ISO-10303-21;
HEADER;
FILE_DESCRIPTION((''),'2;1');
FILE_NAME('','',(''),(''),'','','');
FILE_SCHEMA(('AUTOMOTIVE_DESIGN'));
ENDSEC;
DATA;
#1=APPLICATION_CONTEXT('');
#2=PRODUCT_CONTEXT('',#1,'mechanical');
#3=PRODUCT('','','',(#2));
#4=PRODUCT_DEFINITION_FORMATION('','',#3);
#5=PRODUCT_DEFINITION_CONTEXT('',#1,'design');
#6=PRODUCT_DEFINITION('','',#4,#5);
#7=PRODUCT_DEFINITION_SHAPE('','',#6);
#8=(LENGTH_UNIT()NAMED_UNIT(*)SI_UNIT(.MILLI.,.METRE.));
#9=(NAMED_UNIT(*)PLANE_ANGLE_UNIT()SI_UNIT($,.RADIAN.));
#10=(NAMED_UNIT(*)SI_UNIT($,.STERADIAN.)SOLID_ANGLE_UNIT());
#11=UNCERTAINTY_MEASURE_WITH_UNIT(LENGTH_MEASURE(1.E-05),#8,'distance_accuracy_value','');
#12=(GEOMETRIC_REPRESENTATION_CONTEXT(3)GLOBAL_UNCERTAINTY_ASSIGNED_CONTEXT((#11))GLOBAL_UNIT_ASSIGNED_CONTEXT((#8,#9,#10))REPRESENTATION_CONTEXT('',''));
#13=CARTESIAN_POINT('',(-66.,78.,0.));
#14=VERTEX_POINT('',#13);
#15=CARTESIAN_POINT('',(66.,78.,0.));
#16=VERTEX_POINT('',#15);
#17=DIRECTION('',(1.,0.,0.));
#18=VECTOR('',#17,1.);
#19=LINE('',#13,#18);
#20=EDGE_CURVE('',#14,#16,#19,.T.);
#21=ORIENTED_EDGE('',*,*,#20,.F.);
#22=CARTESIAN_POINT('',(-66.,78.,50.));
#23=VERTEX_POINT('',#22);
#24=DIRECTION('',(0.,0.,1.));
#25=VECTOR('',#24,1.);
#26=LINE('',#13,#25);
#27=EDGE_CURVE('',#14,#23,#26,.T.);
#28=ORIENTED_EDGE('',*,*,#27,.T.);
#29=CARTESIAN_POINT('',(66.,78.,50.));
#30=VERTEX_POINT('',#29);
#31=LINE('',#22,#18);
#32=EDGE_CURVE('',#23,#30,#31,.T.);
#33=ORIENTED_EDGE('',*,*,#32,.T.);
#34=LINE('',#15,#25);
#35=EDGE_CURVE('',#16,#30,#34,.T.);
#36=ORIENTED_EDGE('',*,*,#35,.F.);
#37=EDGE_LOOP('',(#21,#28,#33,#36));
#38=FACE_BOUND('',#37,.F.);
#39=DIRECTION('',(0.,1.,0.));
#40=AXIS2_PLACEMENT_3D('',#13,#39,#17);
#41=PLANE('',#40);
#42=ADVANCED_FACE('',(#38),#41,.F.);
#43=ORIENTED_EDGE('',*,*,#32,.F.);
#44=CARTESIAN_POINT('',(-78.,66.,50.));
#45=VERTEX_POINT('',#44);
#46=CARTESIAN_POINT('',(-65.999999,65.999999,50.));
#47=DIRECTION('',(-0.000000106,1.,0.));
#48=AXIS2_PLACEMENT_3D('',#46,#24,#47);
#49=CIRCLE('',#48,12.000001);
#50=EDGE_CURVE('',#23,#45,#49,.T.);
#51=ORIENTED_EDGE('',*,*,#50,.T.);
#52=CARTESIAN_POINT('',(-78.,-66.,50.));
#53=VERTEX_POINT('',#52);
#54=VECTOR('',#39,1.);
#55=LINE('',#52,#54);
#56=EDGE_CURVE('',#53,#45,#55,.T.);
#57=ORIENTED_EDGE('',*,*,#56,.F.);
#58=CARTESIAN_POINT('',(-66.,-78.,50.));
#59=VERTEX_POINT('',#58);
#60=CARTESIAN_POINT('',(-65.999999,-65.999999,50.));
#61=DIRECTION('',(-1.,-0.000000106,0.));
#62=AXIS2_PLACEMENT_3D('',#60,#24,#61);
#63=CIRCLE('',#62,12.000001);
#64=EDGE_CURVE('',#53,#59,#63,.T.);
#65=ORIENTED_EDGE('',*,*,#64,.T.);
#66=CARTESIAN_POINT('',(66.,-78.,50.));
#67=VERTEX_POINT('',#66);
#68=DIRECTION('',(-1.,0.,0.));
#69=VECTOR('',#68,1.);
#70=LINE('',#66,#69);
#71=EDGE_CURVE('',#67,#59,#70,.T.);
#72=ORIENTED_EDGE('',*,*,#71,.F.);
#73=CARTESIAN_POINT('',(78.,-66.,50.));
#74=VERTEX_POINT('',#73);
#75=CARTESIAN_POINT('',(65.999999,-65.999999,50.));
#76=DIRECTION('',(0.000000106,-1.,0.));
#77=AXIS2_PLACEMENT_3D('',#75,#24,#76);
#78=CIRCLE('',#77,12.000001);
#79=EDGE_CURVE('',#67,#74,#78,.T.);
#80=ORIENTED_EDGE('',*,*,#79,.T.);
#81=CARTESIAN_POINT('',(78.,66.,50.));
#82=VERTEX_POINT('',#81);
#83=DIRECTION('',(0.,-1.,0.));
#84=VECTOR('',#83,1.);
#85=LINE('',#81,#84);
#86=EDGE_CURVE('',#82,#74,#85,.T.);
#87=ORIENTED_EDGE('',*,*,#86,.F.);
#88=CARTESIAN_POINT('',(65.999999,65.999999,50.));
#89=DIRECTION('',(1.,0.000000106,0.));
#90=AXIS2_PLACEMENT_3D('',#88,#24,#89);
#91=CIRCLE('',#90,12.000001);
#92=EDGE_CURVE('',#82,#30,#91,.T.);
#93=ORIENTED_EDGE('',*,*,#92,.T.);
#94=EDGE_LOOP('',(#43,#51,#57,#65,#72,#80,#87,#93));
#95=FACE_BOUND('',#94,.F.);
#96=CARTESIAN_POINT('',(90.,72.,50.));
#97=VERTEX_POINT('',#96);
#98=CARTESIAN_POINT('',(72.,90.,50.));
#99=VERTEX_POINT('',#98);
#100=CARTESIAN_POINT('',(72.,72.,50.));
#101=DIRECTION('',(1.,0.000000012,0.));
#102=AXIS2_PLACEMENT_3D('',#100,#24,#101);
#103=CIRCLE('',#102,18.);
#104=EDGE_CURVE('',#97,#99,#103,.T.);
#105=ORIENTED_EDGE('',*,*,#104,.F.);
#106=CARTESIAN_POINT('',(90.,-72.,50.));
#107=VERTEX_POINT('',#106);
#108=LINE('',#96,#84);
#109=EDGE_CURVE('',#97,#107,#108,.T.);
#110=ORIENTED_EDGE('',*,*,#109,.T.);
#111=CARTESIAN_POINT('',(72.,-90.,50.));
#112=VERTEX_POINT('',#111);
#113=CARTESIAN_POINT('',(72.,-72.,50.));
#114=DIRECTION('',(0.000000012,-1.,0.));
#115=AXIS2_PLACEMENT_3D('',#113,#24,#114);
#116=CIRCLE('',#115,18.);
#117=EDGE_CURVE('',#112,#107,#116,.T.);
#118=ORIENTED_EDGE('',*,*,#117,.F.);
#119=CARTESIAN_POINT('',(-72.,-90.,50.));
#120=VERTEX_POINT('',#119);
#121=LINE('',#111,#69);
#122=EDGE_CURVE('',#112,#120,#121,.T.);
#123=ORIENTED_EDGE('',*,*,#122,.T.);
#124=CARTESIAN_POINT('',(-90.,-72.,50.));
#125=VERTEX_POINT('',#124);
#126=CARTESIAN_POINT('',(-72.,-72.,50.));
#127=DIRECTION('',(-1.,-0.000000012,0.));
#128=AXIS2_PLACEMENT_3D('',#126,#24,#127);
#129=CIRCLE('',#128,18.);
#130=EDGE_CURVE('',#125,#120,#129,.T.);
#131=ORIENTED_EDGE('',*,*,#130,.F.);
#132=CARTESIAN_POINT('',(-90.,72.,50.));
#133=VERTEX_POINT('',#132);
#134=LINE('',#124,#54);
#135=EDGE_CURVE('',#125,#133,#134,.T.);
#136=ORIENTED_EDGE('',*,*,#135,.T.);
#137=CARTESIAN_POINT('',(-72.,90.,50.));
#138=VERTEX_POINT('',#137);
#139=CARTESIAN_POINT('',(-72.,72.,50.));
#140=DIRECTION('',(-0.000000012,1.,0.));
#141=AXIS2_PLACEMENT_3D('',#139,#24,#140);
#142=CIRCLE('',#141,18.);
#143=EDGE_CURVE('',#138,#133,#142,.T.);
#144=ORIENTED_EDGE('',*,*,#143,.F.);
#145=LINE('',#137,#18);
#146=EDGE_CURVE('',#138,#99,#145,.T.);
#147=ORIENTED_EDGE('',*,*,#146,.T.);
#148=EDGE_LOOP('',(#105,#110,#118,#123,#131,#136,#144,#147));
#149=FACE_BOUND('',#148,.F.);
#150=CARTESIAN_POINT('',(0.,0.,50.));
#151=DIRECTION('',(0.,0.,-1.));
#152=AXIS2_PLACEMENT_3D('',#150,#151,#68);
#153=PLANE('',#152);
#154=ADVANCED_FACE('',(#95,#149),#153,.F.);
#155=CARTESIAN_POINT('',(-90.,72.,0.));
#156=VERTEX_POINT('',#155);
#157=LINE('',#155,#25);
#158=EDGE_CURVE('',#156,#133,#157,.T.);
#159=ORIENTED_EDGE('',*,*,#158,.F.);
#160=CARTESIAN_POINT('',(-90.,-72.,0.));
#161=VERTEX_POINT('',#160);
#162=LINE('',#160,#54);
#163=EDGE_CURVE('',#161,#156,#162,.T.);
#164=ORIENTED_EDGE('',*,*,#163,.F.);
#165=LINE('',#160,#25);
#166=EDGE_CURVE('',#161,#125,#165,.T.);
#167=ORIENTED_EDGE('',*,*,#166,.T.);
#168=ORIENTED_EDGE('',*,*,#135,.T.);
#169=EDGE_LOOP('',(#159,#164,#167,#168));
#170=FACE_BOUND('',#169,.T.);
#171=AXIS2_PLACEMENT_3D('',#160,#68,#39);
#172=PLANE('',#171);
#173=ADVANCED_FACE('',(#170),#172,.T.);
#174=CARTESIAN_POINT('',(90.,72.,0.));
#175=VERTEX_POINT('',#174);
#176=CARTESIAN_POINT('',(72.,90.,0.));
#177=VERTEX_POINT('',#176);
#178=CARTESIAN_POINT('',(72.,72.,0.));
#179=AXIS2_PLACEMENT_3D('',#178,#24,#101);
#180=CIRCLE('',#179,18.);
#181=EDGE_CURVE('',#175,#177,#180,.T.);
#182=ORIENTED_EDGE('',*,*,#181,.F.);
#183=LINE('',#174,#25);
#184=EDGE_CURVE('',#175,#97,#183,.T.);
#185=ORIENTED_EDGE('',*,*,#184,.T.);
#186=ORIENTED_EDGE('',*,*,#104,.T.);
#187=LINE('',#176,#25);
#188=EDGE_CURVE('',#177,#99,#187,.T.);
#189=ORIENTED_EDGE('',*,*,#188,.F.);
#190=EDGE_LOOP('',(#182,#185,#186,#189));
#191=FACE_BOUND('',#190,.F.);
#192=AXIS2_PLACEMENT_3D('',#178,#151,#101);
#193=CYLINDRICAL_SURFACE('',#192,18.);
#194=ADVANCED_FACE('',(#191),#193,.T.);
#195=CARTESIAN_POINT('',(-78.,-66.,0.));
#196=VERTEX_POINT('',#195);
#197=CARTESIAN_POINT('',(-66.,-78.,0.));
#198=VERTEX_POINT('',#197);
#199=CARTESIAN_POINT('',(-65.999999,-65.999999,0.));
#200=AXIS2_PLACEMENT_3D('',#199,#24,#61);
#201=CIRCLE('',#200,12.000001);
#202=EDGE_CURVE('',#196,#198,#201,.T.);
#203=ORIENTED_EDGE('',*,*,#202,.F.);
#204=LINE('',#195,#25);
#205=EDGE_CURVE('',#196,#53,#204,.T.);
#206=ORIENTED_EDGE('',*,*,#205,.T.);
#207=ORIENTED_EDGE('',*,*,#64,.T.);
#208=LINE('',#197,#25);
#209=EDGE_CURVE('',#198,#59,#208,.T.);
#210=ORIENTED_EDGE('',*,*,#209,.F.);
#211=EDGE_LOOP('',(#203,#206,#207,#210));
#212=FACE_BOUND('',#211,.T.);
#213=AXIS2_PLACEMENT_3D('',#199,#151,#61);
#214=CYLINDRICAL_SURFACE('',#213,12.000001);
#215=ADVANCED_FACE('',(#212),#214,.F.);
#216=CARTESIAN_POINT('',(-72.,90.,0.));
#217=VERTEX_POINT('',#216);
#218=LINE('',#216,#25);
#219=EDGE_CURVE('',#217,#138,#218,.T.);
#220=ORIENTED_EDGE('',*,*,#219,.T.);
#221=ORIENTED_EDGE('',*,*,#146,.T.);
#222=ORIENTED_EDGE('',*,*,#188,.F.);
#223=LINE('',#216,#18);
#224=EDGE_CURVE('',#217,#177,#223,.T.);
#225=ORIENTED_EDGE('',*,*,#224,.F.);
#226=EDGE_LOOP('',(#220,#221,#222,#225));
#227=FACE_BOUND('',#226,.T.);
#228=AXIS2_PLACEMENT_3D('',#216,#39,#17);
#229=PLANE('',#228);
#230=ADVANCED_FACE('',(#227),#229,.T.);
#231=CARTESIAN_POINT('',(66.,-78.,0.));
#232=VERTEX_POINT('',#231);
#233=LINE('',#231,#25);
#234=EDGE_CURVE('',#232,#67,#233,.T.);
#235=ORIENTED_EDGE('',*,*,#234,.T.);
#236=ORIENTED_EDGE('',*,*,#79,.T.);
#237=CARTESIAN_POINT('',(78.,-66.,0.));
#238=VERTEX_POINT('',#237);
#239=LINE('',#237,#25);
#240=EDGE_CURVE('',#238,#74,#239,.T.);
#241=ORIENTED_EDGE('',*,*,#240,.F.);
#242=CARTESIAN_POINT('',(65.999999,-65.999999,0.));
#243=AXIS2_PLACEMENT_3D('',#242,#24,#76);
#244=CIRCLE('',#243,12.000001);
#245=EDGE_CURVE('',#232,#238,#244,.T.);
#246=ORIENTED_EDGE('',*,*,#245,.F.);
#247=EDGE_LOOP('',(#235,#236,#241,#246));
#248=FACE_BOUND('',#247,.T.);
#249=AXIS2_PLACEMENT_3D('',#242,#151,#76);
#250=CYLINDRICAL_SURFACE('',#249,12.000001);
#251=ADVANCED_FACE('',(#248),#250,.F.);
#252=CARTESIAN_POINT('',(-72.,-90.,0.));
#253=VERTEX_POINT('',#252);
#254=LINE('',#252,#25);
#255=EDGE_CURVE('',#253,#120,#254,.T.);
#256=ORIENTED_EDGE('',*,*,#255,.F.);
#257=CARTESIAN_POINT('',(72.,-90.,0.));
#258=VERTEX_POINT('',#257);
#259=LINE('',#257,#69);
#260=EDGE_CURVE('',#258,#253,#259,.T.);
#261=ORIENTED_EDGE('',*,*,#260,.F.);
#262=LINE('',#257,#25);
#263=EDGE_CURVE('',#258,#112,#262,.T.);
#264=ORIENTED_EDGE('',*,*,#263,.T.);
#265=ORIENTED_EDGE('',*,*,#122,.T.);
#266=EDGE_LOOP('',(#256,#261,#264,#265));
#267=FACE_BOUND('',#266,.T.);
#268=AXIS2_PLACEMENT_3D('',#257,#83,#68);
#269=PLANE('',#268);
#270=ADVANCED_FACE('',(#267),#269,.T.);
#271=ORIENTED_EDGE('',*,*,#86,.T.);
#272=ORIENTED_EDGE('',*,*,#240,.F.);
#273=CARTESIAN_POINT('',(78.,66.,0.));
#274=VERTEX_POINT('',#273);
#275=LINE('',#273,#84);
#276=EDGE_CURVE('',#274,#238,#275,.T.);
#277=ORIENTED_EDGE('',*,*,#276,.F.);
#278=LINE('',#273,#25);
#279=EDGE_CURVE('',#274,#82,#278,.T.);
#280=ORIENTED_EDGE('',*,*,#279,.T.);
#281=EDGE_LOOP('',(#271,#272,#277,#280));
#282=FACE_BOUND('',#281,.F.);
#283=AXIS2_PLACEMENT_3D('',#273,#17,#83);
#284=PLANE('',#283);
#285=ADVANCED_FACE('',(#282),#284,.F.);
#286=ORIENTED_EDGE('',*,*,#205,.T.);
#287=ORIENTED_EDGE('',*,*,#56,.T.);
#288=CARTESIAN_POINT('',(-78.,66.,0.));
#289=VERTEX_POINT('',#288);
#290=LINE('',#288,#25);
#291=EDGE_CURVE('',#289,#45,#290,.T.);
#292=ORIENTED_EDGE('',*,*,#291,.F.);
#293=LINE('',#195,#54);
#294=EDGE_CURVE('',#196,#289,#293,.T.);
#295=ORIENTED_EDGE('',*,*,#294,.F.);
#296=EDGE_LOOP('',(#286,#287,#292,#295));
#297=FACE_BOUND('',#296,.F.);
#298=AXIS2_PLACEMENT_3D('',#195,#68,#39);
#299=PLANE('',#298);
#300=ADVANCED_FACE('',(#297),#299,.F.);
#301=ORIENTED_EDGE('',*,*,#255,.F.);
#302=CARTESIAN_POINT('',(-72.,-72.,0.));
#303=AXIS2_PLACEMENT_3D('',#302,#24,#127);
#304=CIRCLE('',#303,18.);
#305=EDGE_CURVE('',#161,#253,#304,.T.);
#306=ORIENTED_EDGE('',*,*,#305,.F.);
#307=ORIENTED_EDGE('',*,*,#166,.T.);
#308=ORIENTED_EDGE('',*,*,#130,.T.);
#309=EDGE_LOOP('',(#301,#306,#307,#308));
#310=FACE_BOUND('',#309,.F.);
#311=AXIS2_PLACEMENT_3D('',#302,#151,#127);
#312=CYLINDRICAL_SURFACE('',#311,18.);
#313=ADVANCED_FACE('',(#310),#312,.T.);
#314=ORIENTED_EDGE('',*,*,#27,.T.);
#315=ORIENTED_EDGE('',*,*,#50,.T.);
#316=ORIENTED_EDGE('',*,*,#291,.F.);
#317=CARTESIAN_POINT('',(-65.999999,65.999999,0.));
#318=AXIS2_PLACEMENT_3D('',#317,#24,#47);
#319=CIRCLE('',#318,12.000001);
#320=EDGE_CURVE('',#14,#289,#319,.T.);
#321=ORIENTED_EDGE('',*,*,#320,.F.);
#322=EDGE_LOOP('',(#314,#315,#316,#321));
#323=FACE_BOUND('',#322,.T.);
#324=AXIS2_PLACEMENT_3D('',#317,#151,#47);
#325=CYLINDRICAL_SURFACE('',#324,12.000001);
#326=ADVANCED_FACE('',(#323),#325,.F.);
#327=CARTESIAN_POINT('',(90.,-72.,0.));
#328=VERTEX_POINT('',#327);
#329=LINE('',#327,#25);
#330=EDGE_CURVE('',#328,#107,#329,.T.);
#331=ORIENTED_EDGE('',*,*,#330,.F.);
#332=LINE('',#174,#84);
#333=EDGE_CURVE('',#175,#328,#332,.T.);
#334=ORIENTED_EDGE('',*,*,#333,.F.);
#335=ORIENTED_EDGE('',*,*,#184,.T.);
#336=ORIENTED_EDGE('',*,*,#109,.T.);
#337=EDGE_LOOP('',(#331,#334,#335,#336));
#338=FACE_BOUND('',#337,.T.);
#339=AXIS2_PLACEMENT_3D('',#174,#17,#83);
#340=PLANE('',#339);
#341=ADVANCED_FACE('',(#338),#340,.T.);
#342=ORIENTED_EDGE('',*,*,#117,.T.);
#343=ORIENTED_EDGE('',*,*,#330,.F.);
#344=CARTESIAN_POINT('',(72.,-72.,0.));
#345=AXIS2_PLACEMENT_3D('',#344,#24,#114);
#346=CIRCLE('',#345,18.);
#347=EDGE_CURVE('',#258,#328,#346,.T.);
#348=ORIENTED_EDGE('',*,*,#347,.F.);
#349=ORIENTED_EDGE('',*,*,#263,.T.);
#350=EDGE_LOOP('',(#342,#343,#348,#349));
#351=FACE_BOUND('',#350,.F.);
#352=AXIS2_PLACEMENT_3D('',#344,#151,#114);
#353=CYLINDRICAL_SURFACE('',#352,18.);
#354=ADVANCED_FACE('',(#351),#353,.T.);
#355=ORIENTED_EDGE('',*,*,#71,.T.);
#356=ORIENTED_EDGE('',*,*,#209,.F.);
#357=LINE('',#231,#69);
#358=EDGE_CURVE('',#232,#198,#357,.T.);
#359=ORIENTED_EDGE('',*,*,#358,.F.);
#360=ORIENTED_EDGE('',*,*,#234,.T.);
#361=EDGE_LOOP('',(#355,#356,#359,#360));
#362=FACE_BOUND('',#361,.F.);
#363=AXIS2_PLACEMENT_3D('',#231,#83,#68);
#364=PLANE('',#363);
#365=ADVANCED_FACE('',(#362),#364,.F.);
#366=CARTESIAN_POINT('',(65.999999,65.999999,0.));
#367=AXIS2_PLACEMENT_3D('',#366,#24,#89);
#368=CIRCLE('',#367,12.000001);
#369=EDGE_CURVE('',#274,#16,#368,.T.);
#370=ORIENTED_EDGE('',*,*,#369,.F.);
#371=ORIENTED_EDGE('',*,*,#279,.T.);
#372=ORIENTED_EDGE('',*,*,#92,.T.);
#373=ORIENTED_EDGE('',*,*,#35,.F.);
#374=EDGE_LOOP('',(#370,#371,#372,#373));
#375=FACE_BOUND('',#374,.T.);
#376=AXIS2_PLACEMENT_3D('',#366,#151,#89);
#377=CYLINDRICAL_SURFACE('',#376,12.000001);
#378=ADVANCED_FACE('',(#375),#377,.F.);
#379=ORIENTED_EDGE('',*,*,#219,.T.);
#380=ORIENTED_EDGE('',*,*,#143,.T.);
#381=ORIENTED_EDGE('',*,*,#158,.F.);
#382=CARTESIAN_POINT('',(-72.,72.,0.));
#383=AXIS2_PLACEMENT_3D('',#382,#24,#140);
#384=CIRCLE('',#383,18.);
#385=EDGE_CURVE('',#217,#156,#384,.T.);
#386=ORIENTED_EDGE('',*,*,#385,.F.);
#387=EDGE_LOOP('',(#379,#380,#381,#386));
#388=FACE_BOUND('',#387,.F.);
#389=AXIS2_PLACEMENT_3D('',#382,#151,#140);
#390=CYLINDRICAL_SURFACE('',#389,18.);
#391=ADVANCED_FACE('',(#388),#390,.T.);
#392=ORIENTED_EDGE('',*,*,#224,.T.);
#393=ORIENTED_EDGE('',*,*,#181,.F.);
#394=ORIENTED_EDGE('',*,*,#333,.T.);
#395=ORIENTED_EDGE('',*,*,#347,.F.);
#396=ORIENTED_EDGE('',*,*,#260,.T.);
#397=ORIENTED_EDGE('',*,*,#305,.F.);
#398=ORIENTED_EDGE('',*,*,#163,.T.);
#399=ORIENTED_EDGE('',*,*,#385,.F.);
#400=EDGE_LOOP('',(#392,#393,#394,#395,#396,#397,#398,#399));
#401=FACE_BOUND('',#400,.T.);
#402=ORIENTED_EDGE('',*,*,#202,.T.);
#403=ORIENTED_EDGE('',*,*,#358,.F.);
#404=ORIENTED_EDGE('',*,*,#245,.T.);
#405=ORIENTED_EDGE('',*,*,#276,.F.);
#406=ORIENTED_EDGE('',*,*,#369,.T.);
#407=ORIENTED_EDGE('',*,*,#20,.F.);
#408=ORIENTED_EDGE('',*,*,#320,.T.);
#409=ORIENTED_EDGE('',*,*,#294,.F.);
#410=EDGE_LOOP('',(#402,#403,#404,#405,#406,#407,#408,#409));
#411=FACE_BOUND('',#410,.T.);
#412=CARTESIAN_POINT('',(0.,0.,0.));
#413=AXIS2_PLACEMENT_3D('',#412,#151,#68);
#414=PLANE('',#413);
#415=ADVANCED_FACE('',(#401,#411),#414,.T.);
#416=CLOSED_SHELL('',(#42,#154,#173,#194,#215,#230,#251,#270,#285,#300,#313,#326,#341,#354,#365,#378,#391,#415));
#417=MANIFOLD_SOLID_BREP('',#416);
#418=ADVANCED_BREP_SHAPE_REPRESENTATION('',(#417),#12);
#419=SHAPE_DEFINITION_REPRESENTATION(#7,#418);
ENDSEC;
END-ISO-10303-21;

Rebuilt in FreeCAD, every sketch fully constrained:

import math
import FreeCAD as App
import Part
import Sketcher

doc = App.newDocument("Part")
params = doc.addObject("Spreadsheet::Sheet", "Params")
for row, (alias, value) in enumerate([
    ("sketch1_radius", "18 mm"),
    ("sketch1_radius2", "12.000001 mm"),
    ("sketch1_width", "144 mm"),
    ("sketch1_width2", "132 mm"),
    ("pad1_length", "50 mm"),
], start=1):
    params.set(f"A{row}", alias)
    params.set(f"B{row}", "=" + value)
    params.setAlias(f"B{row}", alias)

body = doc.addObject("PartDesign::Body", "Body")

# Sketch on XY plane
sketch1 = doc.addObject("Sketcher::SketchObject", "Sketch")
body.addObject(sketch1)
sketch1.AttachmentSupport = (doc.XY_Plane, [""])
sketch1.MapMode = "FlatFace"
sketch1.addGeometry([
    Part.LineSegment(App.Vector(72, 90, 0), App.Vector(-72, 90, 0)),  # 0
    Part.ArcOfCircle(Part.Circle(App.Vector(-72, 72, 0), App.Vector(0, 0, 1), 18), math.radians(90), math.radians(180)),  # 1
    Part.LineSegment(App.Vector(-90, 72, 0), App.Vector(-90, -72, 0)),  # 2
    Part.ArcOfCircle(Part.Circle(App.Vector(-72, -72, 0), App.Vector(0, 0, 1), 18), math.radians(-180), math.radians(-90)),  # 3
    Part.LineSegment(App.Vector(-72, -90, 0), App.Vector(72, -90, 0)),  # 4
    Part.ArcOfCircle(Part.Circle(App.Vector(72, -72, 0), App.Vector(0, 0, 1), 18), math.radians(-90), math.radians(0)),  # 5
    Part.LineSegment(App.Vector(90, -72, 0), App.Vector(90, 72, 0)),  # 6
    Part.ArcOfCircle(Part.Circle(App.Vector(72, 72, 0), App.Vector(0, 0, 1), 18), math.radians(0), math.radians(90)),  # 7
    Part.LineSegment(App.Vector(-66, 78, 0), App.Vector(66, 78, 0)),  # 8
    Part.ArcOfCircle(Part.Circle(App.Vector(66, 66, 0), App.Vector(0, 0, 1), 12), math.radians(0), math.radians(90)),  # 9
    Part.LineSegment(App.Vector(78, 66, 0), App.Vector(78, -66, 0)),  # 10
    Part.ArcOfCircle(Part.Circle(App.Vector(66, -66, 0), App.Vector(0, 0, 1), 12), math.radians(-90), math.radians(0)),  # 11
    Part.LineSegment(App.Vector(66, -78, 0), App.Vector(-66, -78, 0)),  # 12
    Part.ArcOfCircle(Part.Circle(App.Vector(-66, -66, 0), App.Vector(0, 0, 1), 12), math.radians(-180), math.radians(-90)),  # 13
    Part.LineSegment(App.Vector(-78, -66, 0), App.Vector(-78, 66, 0)),  # 14
    Part.ArcOfCircle(Part.Circle(App.Vector(-66, 66, 0), App.Vector(0, 0, 1), 12), math.radians(90), math.radians(180)),  # 15
], False)
sketch1.addConstraint([
    Sketcher.Constraint("Tangent", 0, 2, 1, 1),
    Sketcher.Constraint("Tangent", 1, 2, 2, 1),
    Sketcher.Constraint("Tangent", 2, 2, 3, 1),
    Sketcher.Constraint("Tangent", 3, 2, 4, 1),
    Sketcher.Constraint("Tangent", 4, 2, 5, 1),
    Sketcher.Constraint("Tangent", 5, 2, 6, 1),
    Sketcher.Constraint("Tangent", 6, 2, 7, 1),
    Sketcher.Constraint("Tangent", 7, 2, 0, 1),
    Sketcher.Constraint("Tangent", 8, 2, 9, 2),
    Sketcher.Constraint("Tangent", 9, 1, 10, 1),
    Sketcher.Constraint("Tangent", 10, 2, 11, 2),
    Sketcher.Constraint("Tangent", 11, 1, 12, 1),
    Sketcher.Constraint("Tangent", 12, 2, 13, 2),
    Sketcher.Constraint("Tangent", 13, 1, 14, 1),
    Sketcher.Constraint("Tangent", 14, 2, 15, 2),
    Sketcher.Constraint("Tangent", 15, 1, 8, 1),
    Sketcher.Constraint("Horizontal", 0),
    Sketcher.Constraint("Vertical", 2),
    Sketcher.Constraint("Horizontal", 4),
    Sketcher.Constraint("Vertical", 6),
    Sketcher.Constraint("Horizontal", 8),
    Sketcher.Constraint("Vertical", 10),
    Sketcher.Constraint("Horizontal", 12),
    Sketcher.Constraint("Vertical", 14),
    Sketcher.Constraint("Equal", 1, 3),
    Sketcher.Constraint("Equal", 3, 5),
    Sketcher.Constraint("Equal", 5, 7),
    Sketcher.Constraint("Equal", 9, 11),
    Sketcher.Constraint("Equal", 11, 13),
    Sketcher.Constraint("Equal", 13, 15),
    Sketcher.Constraint("Symmetric", 1, 3, 5, 3, -1, 1),
    Sketcher.Constraint("Symmetric", 9, 3, 13, 3, -1, 1),
    Sketcher.Constraint("Equal", 4, 2),
    Sketcher.Constraint("Equal", 12, 10),
    Sketcher.Constraint("Radius", 1, 18.0),
    Sketcher.Constraint("Radius", 9, 12.000001),
    Sketcher.Constraint("DistanceX", 0, 2, 0, 1, 144.0),
    Sketcher.Constraint("DistanceX", 8, 1, 8, 2, 132.0),
])
sketch1.setExpression("Constraints[34]", "Params.sketch1_radius")
sketch1.setExpression("Constraints[35]", "Params.sketch1_radius2")
sketch1.setExpression("Constraints[36]", "Params.sketch1_width")
sketch1.setExpression("Constraints[37]", "Params.sketch1_width2")
pad1 = doc.addObject("PartDesign::Pad", "Pad")
body.addObject(pad1)
pad1.Profile = sketch1
pad1.setExpression("Length", "Params.pad1_length")

doc.recompute()
